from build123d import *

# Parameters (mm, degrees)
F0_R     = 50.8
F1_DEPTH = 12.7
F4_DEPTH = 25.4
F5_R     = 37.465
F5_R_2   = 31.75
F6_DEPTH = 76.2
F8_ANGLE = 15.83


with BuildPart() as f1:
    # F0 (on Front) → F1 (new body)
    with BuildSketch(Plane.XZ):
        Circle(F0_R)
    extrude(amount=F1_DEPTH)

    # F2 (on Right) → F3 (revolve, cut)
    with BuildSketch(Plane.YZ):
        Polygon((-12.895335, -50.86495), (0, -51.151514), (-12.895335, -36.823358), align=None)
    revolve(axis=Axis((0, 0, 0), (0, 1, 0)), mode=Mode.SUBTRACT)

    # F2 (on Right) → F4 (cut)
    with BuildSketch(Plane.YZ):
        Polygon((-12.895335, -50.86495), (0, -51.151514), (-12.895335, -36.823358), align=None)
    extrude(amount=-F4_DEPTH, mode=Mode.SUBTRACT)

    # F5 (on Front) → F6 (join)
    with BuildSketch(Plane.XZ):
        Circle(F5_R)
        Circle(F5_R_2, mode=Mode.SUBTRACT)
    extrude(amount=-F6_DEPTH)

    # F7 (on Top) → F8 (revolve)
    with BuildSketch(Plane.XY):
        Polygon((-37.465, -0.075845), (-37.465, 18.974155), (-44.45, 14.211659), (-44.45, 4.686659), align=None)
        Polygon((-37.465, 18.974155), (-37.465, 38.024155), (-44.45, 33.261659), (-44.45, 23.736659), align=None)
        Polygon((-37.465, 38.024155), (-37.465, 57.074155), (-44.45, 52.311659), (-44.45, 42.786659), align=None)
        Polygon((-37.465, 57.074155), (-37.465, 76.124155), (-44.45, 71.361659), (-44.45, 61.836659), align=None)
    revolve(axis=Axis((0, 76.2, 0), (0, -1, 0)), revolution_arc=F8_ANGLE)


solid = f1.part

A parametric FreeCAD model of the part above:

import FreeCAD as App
import Part
import Sketcher
Q = App.Units.Quantity

doc = App.newDocument("Part")
params = doc.addObject("Spreadsheet::Sheet", "Params")
for row, (alias, value) in enumerate([
    ("sketch1_diameter", "4 in"),
    ("pad1_length", "0.5 in"),
    ("groove_angle", "360 deg"),
    ("pocket1_length", "1 in"),
    ("sketch4_diameter", "2.5 in"),
    ("sketch4_diameter2", "2.95 in"),
    ("pad2_length", "3 in"),
    ("sketch5_height", "0.75 in"),
    ("sketch5_height2", "0.375 in"),
    ("revolution_angle", "15.83 deg"),
], start=1):
    params.set(f"A{row}", alias)
    params.set(f"B{row}", "=" + value)
    params.setAlias(f"B{row}", alias)

body = doc.addObject("PartDesign::Body", "Body")

sketch1 = body.newObject("Sketcher::SketchObject", "Sketch")
sketch1.AttachmentSupport = (doc.getObject("XZ_Plane"), [""])
sketch1.MapMode = "FlatFace"
sketch1.addGeometry(Part.Circle(App.Vector(0, 0, 0), App.Vector(0, 0, 1), 51), False)
sketch1.addConstraint([
    Sketcher.Constraint("Coincident", 0, 3, -1, 1),
    Sketcher.Constraint("Diameter", 0, Q("4 in")),
])
sketch1.setExpression("Constraints[1]", "Params.sketch1_diameter")
pad1 = body.newObject("PartDesign::Pad", "Pad")
pad1.Profile = sketch1
pad1.setExpression("Length", "Params.pad1_length")

sketch2 = body.newObject("Sketcher::SketchObject", "Sketch001")
sketch2.AttachmentSupport = (doc.getObject("YZ_Plane"), [""])
sketch2.MapMode = "FlatFace"
sketch2.addGeometry([
    Part.LineSegment(App.Vector(-13, -51, 0), App.Vector(0, -51, 0)),
    Part.LineSegment(App.Vector(0, -51, 0), App.Vector(-13, -37, 0)),
    Part.LineSegment(App.Vector(-13, -37, 0), App.Vector(-13, -51, 0)),
], False)
sketch2.addConstraint([
    Sketcher.Constraint("Coincident", 0, 2, 1, 1),
    Sketcher.Constraint("Coincident", 1, 2, 2, 1),
    Sketcher.Constraint("Coincident", 2, 2, 0, 1),
    Sketcher.Constraint("Vertical", 2),
    Sketcher.Constraint("PointOnObject", 0, 2, -2),
    Sketcher.Constraint("Distance", 0, Q("12.898519 mm")),
    Sketcher.Constraint("Distance", 1, Q("19.276559 mm")),
    Sketcher.Constraint("DistanceY", 2, 2, 2, 1, Q("14.041592 mm")),
    Sketcher.Constraint("DistanceY", 2, 2, -1, 1, Q("50.86495 mm")),
])
groove = body.newObject("PartDesign::Groove", "Groove")
groove.Profile = sketch2
groove.ReferenceAxis = (sketch2, ["H_Axis"])
groove.setExpression("Angle", "Params.groove_angle")

sketch3 = body.newObject("Sketcher::SketchObject", "Sketch002")
sketch3.AttachmentSupport = (doc.getObject("YZ_Plane"), [""])
sketch3.MapMode = "FlatFace"
sketch3.addGeometry([
    Part.LineSegment(App.Vector(-13, -51, 0), App.Vector(0, -51, 0)),
    Part.LineSegment(App.Vector(0, -51, 0), App.Vector(-13, -37, 0)),
    Part.LineSegment(App.Vector(-13, -37, 0), App.Vector(-13, -51, 0)),
], False)
sketch3.addConstraint([
    Sketcher.Constraint("Coincident", 0, 2, 1, 1),
    Sketcher.Constraint("Coincident", 1, 2, 2, 1),
    Sketcher.Constraint("Coincident", 2, 2, 0, 1),
    Sketcher.Constraint("Vertical", 2),
    Sketcher.Constraint("PointOnObject", 0, 2, -2),
    Sketcher.Constraint("Distance", 0, Q("12.898519 mm")),
    Sketcher.Constraint("Distance", 1, Q("19.276559 mm")),
    Sketcher.Constraint("DistanceY", 2, 2, 2, 1, Q("14.041592 mm")),
    Sketcher.Constraint("DistanceY", 2, 2, -1, 1, Q("50.86495 mm")),
])
pocket1 = body.newObject("PartDesign::Pocket", "Pocket")
pocket1.Profile = sketch3
pocket1.setExpression("Length", "Params.pocket1_length")

sketch4 = body.newObject("Sketcher::SketchObject", "Sketch003")
sketch4.AttachmentSupport = (doc.getObject("XZ_Plane"), [""])
sketch4.MapMode = "FlatFace"
sketch4.addGeometry([
    Part.Circle(App.Vector(0, 0, 0), App.Vector(0, 0, 1), 37),
    Part.Circle(App.Vector(0, 0, 0), App.Vector(0, 0, 1), 32),
], False)
sketch4.addConstraint([
    Sketcher.Constraint("Coincident", 0, 3, -1, 1),
    Sketcher.Constraint("Coincident", 1, 3, -1, 1),
    Sketcher.Constraint("Diameter", 1, Q("2.5 in")),
    Sketcher.Constraint("Diameter", 0, Q("2.95 in")),
])
sketch4.setExpression("Constraints[2]", "Params.sketch4_diameter")
sketch4.setExpression("Constraints[3]", "Params.sketch4_diameter2")
pad2 = body.newObject("PartDesign::Pad", "Pad001")
pad2.Profile = sketch4
pad2.setExpression("Length", "Params.pad2_length")
pad2.Reversed = True

sketch5 = body.newObject("Sketcher::SketchObject", "Sketch004")
sketch5.AttachmentSupport = (doc.getObject("XY_Plane"), [""])
sketch5.MapMode = "FlatFace"
sketch5.addGeometry([
    Part.LineSegment(App.Vector(-37, 0, 0), App.Vector(-37, 19, 0)),
    Part.LineSegment(App.Vector(-37, 19, 0), App.Vector(-44, 14, 0)),
    Part.LineSegment(App.Vector(-44, 14, 0), App.Vector(-44, 5, 0)),
    Part.LineSegment(App.Vector(-44, 5, 0), App.Vector(-37, 0, 0)),
    Part.LineSegment(App.Vector(-37, 19, 0), App.Vector(-37, 38, 0)),
    Part.LineSegment(App.Vector(-37, 38, 0), App.Vector(-44, 33, 0)),
    Part.LineSegment(App.Vector(-44, 33, 0), App.Vector(-44, 24, 0)),
    Part.LineSegment(App.Vector(-44, 24, 0), App.Vector(-37, 19, 0)),
    Part.LineSegment(App.Vector(-37, 38, 0), App.Vector(-37, 57, 0)),
    Part.LineSegment(App.Vector(-37, 57, 0), App.Vector(-44, 52, 0)),
    Part.LineSegment(App.Vector(-44, 52, 0), App.Vector(-44, 43, 0)),
    Part.LineSegment(App.Vector(-44, 43, 0), App.Vector(-37, 38, 0)),
    Part.LineSegment(App.Vector(-37, 57, 0), App.Vector(-37, 76, 0)),
    Part.LineSegment(App.Vector(-37, 76, 0), App.Vector(-44, 71, 0)),
    Part.LineSegment(App.Vector(-44, 71, 0), App.Vector(-44, 62, 0)),
    Part.LineSegment(App.Vector(-44, 62, 0), App.Vector(-37, 57, 0)),
], False)
sketch5.addConstraint([
    Sketcher.Constraint("Coincident", 0, 2, 1, 1),
    Sketcher.Constraint("Coincident", 1, 2, 2, 1),
    Sketcher.Constraint("Coincident", 2, 2, 3, 1),
    Sketcher.Constraint("Coincident", 3, 2, 0, 1),
    Sketcher.Constraint("Coincident", 4, 2, 5, 1),
    Sketcher.Constraint("Coincident", 5, 2, 6, 1),
    Sketcher.Constraint("Coincident", 6, 2, 7, 1),
    Sketcher.Constraint("Coincident", 7, 2, 4, 1),
    Sketcher.Constraint("Coincident", 8, 2, 9, 1),
    Sketcher.Constraint("Coincident", 9, 2, 10, 1),
    Sketcher.Constraint("Coincident", 10, 2, 11, 1),
    Sketcher.Constraint("Coincident", 11, 2, 8, 1),
    Sketcher.Constraint("Coincident", 12, 2, 13, 1),
    Sketcher.Constraint("Coincident", 13, 2, 14, 1),
    Sketcher.Constraint("Coincident", 14, 2, 15, 1),
    Sketcher.Constraint("Coincident", 15, 2, 12, 1),
    Sketcher.Constraint("Vertical", 0),
    Sketcher.Constraint("Vertical", 2),
    Sketcher.Constraint("Vertical", 4),
    Sketcher.Constraint("Vertical", 6),
    Sketcher.Constraint("Vertical", 8),
    Sketcher.Constraint("Vertical", 10),
    Sketcher.Constraint("Vertical", 12),
    Sketcher.Constraint("Vertical", 14),
    Sketcher.Constraint("Coincident", 7, 2, 0, 2),
    Sketcher.Constraint("Coincident", 11, 2, 4, 2),
    Sketcher.Constraint("Coincident", 15, 2, 8, 2),
    Sketcher.Constraint("Parallel", 1, 5),
    Sketcher.Constraint("Parallel", 3, 7),
    Sketcher.Constraint("Parallel", 5, 9),
    Sketcher.Constraint("Parallel", 7, 11),
    Sketcher.Constraint("Parallel", 9, 13),
    Sketcher.Constraint("Parallel", 11, 15),
    Sketcher.Constraint("Vertical", 2, 2, 5, 2),
    Sketcher.Constraint("Vertical", 6, 2, 9, 2),
    Sketcher.Constraint("Vertical", 10, 2, 13, 2),
    Sketcher.Constraint("Equal", 0, 4),
    Sketcher.Constraint("Equal", 4, 8),
    Sketcher.Constraint("Equal", 8, 12),
    Sketcher.Constraint("DistanceY", 0, 1, 0, 2, Q("0.75 in")),
    Sketcher.Constraint("DistanceY", 2, 2, 2, 1, Q("0.375 in")),
    Sketcher.Constraint("DistanceX", 1, 2, -1, 1, Q("1.75 in")),
    Sketcher.Constraint("DistanceX", 0, 2, -1, 1, Q("1.475 in")),
    Sketcher.Constraint("DistanceY", 1, 2, 0, 2, Q("0.1874998 in")),
    Sketcher.Constraint("DistanceY", -1, 1, 1, 2, Q("14.211659 mm")),
])
sketch5.setExpression("Constraints[39]", "Params.sketch5_height")
sketch5.setExpression("Constraints[40]", "Params.sketch5_height2")
revolution = body.newObject("PartDesign::Revolution", "Revolution")
revolution.Profile = sketch5
revolution.ReferenceAxis = (sketch5, ["V_Axis"])
revolution.setExpression("Angle", "Params.revolution_angle")
revolution.Reversed = True

doc.recompute()
